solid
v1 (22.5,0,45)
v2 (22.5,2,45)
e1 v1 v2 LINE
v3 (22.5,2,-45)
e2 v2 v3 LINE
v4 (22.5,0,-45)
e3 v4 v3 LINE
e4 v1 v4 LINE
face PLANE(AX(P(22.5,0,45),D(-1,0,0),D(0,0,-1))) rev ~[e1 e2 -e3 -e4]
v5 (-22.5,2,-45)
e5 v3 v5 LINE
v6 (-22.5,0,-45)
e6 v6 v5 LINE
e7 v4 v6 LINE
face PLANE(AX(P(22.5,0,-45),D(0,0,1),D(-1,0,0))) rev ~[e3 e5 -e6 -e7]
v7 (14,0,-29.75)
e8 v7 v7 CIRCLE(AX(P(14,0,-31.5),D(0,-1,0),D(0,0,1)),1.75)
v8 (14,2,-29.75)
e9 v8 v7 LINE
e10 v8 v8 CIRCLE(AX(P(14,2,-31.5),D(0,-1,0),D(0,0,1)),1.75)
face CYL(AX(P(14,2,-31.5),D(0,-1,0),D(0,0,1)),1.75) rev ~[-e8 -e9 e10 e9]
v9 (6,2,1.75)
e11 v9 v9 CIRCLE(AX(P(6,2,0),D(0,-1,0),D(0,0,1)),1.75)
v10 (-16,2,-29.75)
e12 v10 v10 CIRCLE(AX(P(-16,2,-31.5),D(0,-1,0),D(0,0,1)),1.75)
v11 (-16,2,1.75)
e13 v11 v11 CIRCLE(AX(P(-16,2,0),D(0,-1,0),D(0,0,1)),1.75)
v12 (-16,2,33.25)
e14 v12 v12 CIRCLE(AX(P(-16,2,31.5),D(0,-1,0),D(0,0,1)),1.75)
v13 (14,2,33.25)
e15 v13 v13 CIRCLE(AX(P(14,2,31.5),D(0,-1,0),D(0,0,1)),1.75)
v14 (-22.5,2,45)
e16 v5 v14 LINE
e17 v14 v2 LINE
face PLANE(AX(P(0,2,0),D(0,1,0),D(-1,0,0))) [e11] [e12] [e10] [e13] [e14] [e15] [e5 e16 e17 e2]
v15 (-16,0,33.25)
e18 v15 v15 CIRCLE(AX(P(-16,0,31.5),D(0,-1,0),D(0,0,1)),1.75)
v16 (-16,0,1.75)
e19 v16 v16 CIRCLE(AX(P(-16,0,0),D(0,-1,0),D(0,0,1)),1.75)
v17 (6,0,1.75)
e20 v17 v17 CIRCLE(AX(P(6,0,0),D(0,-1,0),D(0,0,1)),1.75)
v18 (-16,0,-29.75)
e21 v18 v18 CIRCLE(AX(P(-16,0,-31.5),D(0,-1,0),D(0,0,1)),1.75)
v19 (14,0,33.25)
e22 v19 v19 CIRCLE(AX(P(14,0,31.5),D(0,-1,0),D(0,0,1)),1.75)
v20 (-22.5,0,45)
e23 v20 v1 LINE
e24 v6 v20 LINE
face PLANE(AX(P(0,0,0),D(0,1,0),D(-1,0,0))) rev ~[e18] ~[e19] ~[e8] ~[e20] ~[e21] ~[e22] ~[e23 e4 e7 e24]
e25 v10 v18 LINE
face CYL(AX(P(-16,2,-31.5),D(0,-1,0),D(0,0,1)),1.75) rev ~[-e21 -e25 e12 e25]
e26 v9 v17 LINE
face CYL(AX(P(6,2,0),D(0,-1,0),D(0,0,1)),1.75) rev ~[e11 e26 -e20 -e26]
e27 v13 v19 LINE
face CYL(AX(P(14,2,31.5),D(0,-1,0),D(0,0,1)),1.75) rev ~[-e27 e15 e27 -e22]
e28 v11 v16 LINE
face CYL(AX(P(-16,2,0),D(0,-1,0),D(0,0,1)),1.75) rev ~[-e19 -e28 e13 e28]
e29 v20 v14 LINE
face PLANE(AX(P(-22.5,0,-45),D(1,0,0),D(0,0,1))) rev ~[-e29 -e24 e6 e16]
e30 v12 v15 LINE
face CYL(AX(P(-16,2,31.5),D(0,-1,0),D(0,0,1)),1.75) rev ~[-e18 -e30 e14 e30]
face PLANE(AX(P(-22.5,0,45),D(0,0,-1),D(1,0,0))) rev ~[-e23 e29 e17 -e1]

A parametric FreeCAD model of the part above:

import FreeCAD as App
import Part
import Sketcher

V = App.Vector
Q = App.Units.Quantity


def add_polygon(sketch, points):
    """Adds a closed chain of lines whose ends are joined by coincident constraints."""
    first, n = sketch.GeometryCount, len(points)
    for a, b in zip(points, points[1:] + points[:1]):
        sketch.addGeometry(Part.LineSegment(App.Vector(*a, 0), App.Vector(*b, 0)), False)
    for i in range(n):
        sketch.addConstraint(Sketcher.Constraint("Coincident", first + i, 2, first + (i + 1) % n, 1))

doc = App.newDocument("Part")
body = doc.addObject("PartDesign::Body", "Body")

# Sketch on XZ plane
sketch1 = body.newObject("Sketcher::SketchObject", "Sketch")
sketch1.AttachmentSupport = (doc.getObject("XZ_Plane"), [""])
sketch1.MapMode = "FlatFace"
add_polygon(sketch1, [(22, 45), (22, -45), (-22, -45), (-22, 45)])  # lines 0-3
sketch1.addConstraint([
    Sketcher.Constraint("Vertical", 0),
    Sketcher.Constraint("Horizontal", 1),
    Sketcher.Constraint("Vertical", 2),
    Sketcher.Constraint("Horizontal", 3),
    Sketcher.Constraint("Symmetric", 0, 2, 2, 2, -1, 1),
    Sketcher.Constraint("DistanceX", 1, 2, 1, 1, Q("45 mm")),
    Sketcher.Constraint("DistanceY", 0, 2, 0, 1, Q("90 mm")),
])
pad1 = body.newObject("PartDesign::Pad", "Pad")
pad1.Profile = sketch1
pad1.Length = 2
pad1.Reversed = True

# Sketch on XZ plane
sketch2 = body.newObject("Sketcher::SketchObject", "Sketch001")
sketch2.AttachmentSupport = (doc.getObject("XZ_Plane"), [""])
sketch2.MapMode = "FlatFace"
sketch2.AttachmentOffset = App.Placement(V(0, 0, -2), App.Rotation())
sketch2.addGeometry([
    Part.Circle(V(14, -31.5, 0), V(0, 0, 1), 1.8),  # 0
    Part.Circle(V(6, 0, 0), V(0, 0, 1), 1.8),  # 1
    Part.Circle(V(14, 31.5, 0), V(0, 0, 1), 1.8),  # 2
    Part.Circle(V(-16, 31.5, 0), V(0, 0, 1), 1.8),  # 3
    Part.Circle(V(-16, 0, 0), V(0, 0, 1), 1.8),  # 4
    Part.Circle(V(-16, -31.5, 0), V(0, 0, 1), 1.8),  # 5
], False)
sketch2.addConstraint([
    Sketcher.Constraint("Equal", 0, 1),
    Sketcher.Constraint("Equal", 1, 2),
    Sketcher.Constraint("Equal", 2, 3),
    Sketcher.Constraint("Equal", 3, 4),
    Sketcher.Constraint("Equal", 4, 5),
    Sketcher.Constraint("Symmetric", 0, 3, 2, 3, -1),
    Sketcher.Constraint("Symmetric", 3, 3, 5, 3, -1),
    Sketcher.Constraint("PointOnObject", 1, 3, -1),
    Sketcher.Constraint("PointOnObject", 4, 3, -1),
    Sketcher.Constraint("Horizontal", 2, 3, 3, 3),
    Sketcher.Constraint("Vertical", 3, 3, 4, 3),
    Sketcher.Constraint("Diameter", 0, Q("3.5 mm")),
    Sketcher.Constraint("DistanceX", -1, 1, 0, 3, Q("14 mm")),
    Sketcher.Constraint("DistanceX", -1, 1, 1, 3, Q("6 mm")),
    Sketcher.Constraint("DistanceX", 3, 3, -1, 1, Q("16 mm")),
    Sketcher.Constraint("DistanceY", 0, 3, 2, 3, Q("63 mm")),
])
doc.recompute()
hole = body.newObject("PartDesign::Hole", "Hole")
hole.Profile = sketch2
hole.ThreadType = "None"
hole.Diameter = 3.5
hole.DepthType = "ThroughAll"
hole.Reversed = True

doc.recompute()
